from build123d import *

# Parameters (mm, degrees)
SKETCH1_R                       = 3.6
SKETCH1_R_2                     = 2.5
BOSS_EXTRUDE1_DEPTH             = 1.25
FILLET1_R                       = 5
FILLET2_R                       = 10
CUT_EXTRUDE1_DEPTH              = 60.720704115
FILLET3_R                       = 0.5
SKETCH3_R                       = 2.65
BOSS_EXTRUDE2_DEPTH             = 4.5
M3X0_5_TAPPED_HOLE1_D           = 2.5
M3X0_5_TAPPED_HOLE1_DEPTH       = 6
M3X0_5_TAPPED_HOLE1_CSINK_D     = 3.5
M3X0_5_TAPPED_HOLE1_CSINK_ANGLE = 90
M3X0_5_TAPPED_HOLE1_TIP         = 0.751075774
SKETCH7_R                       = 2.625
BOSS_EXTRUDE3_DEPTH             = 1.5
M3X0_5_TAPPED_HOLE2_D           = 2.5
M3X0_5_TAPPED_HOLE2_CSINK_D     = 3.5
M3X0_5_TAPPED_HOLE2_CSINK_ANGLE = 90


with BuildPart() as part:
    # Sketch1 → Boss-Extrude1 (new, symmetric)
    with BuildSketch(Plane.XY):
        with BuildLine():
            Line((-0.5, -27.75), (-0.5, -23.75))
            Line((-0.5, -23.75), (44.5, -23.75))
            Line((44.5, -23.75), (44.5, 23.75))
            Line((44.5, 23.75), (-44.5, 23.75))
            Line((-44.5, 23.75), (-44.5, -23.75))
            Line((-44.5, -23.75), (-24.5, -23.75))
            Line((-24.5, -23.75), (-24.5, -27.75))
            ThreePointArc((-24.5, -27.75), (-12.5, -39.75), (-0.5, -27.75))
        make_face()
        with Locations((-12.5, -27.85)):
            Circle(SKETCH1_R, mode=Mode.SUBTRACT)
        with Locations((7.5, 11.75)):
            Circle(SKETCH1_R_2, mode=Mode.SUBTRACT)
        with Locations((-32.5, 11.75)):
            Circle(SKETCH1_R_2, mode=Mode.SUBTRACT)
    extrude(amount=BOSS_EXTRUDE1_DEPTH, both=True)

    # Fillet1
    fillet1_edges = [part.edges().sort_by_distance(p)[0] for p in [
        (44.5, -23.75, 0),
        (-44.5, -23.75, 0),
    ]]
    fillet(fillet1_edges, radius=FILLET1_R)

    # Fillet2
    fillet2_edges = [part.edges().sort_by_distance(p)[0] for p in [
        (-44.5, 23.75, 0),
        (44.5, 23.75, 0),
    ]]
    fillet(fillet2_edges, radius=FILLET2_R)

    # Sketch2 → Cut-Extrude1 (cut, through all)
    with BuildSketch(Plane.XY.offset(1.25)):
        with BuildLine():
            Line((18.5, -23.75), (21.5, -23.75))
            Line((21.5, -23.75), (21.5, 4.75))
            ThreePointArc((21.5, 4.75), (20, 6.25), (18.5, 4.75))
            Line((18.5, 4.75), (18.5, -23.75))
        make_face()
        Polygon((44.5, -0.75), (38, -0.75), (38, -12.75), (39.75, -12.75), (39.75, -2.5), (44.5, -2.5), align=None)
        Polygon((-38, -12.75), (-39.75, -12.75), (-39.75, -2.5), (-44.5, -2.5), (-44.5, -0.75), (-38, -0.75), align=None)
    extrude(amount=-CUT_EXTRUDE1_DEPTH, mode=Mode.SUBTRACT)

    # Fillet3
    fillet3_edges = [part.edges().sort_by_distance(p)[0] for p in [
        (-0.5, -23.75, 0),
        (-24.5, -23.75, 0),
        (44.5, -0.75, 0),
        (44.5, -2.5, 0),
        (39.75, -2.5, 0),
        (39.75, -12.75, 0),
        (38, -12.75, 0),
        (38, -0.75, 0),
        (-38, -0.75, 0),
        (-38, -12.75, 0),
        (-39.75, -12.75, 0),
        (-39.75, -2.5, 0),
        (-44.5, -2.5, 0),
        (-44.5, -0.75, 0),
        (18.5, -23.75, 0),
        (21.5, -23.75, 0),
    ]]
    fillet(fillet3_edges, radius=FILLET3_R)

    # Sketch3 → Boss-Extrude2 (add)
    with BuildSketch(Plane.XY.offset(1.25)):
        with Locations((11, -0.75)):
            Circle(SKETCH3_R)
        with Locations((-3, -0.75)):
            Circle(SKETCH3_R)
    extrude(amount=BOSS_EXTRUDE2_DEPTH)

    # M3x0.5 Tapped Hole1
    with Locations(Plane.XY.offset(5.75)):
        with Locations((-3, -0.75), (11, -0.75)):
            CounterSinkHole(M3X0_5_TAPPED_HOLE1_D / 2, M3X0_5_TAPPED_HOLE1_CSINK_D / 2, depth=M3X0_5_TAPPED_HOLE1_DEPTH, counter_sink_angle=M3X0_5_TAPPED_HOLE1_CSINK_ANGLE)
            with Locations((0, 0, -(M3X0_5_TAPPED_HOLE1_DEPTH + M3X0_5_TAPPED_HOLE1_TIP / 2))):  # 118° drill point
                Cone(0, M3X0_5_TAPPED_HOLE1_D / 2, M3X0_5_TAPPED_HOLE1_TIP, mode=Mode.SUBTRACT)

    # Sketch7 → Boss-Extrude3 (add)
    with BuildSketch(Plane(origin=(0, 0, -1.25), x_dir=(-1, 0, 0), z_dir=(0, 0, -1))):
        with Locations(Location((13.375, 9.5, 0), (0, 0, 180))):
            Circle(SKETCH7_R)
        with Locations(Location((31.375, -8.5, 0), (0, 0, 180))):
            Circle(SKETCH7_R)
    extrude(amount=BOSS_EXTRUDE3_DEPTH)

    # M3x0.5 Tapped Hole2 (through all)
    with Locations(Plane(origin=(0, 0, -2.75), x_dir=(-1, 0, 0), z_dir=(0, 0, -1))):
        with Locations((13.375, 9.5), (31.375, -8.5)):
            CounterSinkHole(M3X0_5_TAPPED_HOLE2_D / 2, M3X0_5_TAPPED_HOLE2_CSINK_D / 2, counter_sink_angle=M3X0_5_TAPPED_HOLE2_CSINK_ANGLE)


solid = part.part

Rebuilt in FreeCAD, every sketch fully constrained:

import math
import FreeCAD as App
import Part
import Sketcher
from FreeCAD import Vector


def edges_at(feature, points):
    """Names of the edges that pass closest to the given points."""
    edges = feature.Shape.Edges
    near = lambda p: min(range(len(edges)), key=lambda i: edges[i].distToShape(Part.Vertex(*p))[0])
    return sorted({f"Edge{near(p) + 1}" for p in points})

doc = App.newDocument("Part")
body = doc.addObject("PartDesign::Body", "Body")

sketch1 = body.newObject("Sketcher::SketchObject", "Sketch")
sketch1.AttachmentSupport = (doc.getObject("XY_Plane"), [""])
sketch1.MapMode = "FlatFace"
sketch1.addGeometry([
    Part.LineSegment(Vector(-0.5, -27.75, 0), Vector(-0.5, -23.75, 0)),
    Part.LineSegment(Vector(-0.5, -23.75, 0), Vector(44.5, -23.75, 0)),
    Part.LineSegment(Vector(44.5, -23.75, 0), Vector(44.5, 23.75, 0)),
    Part.LineSegment(Vector(44.5, 23.75, 0), Vector(-44.5, 23.75, 0)),
    Part.LineSegment(Vector(-44.5, 23.75, 0), Vector(-44.5, -23.75, 0)),
    Part.LineSegment(Vector(-44.5, -23.75, 0), Vector(-24.5, -23.75, 0)),
    Part.LineSegment(Vector(-24.5, -23.75, 0), Vector(-24.5, -27.75, 0)),
    Part.ArcOfCircle(Part.Circle(Vector(-12.5, -27.75, 0), Vector(0, 0, 1), 12), math.radians(180), math.radians(360)),
    Part.Circle(Vector(-12.5, -27.85, 0), Vector(0, 0, 1), 3.6),
    Part.Circle(Vector(-32.5, 11.75, 0), Vector(0, 0, 1), 2.5),
    Part.Circle(Vector(7.5, 11.75, 0), Vector(0, 0, 1), 2.5),
], False)
sketch1.addConstraint([
    Sketcher.Constraint("Coincident", 0, 2, 1, 1),
    Sketcher.Constraint("Coincident", 1, 2, 2, 1),
    Sketcher.Constraint("Coincident", 2, 2, 3, 1),
    Sketcher.Constraint("Coincident", 3, 2, 4, 1),
    Sketcher.Constraint("Coincident", 4, 2, 5, 1),
    Sketcher.Constraint("Coincident", 5, 2, 6, 1),
    Sketcher.Constraint("Tangent", 6, 2, 7, 1),
    Sketcher.Constraint("Tangent", 7, 2, 0, 1),
    Sketcher.Constraint("Vertical", 0),
    Sketcher.Constraint("Horizontal", 1),
    Sketcher.Constraint("Vertical", 2),
    Sketcher.Constraint("Horizontal", 3),
    Sketcher.Constraint("Vertical", 4),
    Sketcher.Constraint("Horizontal", 5),
    Sketcher.Constraint("Vertical", 6),
    Sketcher.Constraint("Equal", 9, 10),
    Sketcher.Constraint("Symmetric", 1, 2, 3, 2, -1, 1),
    Sketcher.Constraint("Horizontal", 9, 3, 10, 3),
    Sketcher.Constraint("Horizontal", 1, 2, 4, 2),
    Sketcher.Constraint("Vertical", 7, 3, 8, 3),
    Sketcher.Constraint("Diameter", 9, 5.0),
    Sketcher.Constraint("Radius", 7, 12.0),
    Sketcher.Constraint("Diameter", 8, 7.2),
    Sketcher.Constraint("DistanceX", 1, 1, 1, 2, 45.0),
    Sketcher.Constraint("DistanceX", 3, 2, 3, 1, 89.0),
    Sketcher.Constraint("DistanceY", 0, 1, 0, 2, 4.0),
    Sketcher.Constraint("DistanceY", 2, 1, 2, 2, 47.5),
    Sketcher.Constraint("DistanceX", 9, 3, 7, 3, 20.0),
    Sketcher.Constraint("DistanceX", 9, 3, 10, 3, 40.0),
    Sketcher.Constraint("DistanceY", 10, 3, 2, 2, 12.0),
    Sketcher.Constraint("DistanceY", 8, 3, 7, 3, 0.1),
])
pad1 = body.newObject("PartDesign::Pad", "Pad")
pad1.Profile = sketch1
pad1.Length = 2.5
pad1.Midplane = True
doc.recompute()

fillet = body.newObject("PartDesign::Fillet", "Fillet")
fillet.Base = (pad1, edges_at(pad1, [(44.5, -23.75, 0), (-44.5, -23.75, 0)]))
fillet.Radius = 5
doc.recompute()

fillet2 = body.newObject("PartDesign::Fillet", "Fillet001")
fillet2.Base = (fillet, edges_at(fillet, [(-44.5, 23.75, 0), (44.5, 23.75, 0)]))
fillet2.Radius = 10

sketch2 = body.newObject("Sketcher::SketchObject", "Sketch001")
sketch2.AttachmentSupport = (doc.getObject("XY_Plane"), [""])
sketch2.MapMode = "FlatFace"
sketch2.AttachmentOffset = App.Placement(Vector(0, 0, 1.25), App.Rotation())
sketch2.addGeometry([
    Part.LineSegment(Vector(18.5, -23.75, 0), Vector(21.5, -23.75, 0)),
    Part.LineSegment(Vector(21.5, -23.75, 0), Vector(21.5, 4.75, 0)),
    Part.ArcOfCircle(Part.Circle(Vector(20, 4.75, 0), Vector(0, 0, 1), 1.5), math.radians(0), math.radians(180)),
    Part.LineSegment(Vector(18.5, 4.75, 0), Vector(18.5, -23.75, 0)),
    Part.LineSegment(Vector(44.5, -0.75, 0), Vector(38, -0.75, 0)),
    Part.LineSegment(Vector(38, -0.75, 0), Vector(38, -12.75, 0)),
    Part.LineSegment(Vector(38, -12.75, 0), Vector(39.75, -12.75, 0)),
    Part.LineSegment(Vector(39.75, -12.75, 0), Vector(39.75, -2.5, 0)),
    Part.LineSegment(Vector(39.75, -2.5, 0), Vector(44.5, -2.5, 0)),
    Part.LineSegment(Vector(44.5, -2.5, 0), Vector(44.5, -0.75, 0)),
    Part.LineSegment(Vector(-39.75, -12.75, 0), Vector(-38, -12.75, 0)),
    Part.LineSegment(Vector(-38, -12.75, 0), Vector(-38, -0.75, 0)),
    Part.LineSegment(Vector(-38, -0.75, 0), Vector(-44.5, -0.75, 0)),
    Part.LineSegment(Vector(-44.5, -0.75, 0), Vector(-44.5, -2.5, 0)),
    Part.LineSegment(Vector(-44.5, -2.5, 0), Vector(-39.75, -2.5, 0)),
    Part.LineSegment(Vector(-39.75, -2.5, 0), Vector(-39.75, -12.75, 0)),
], False)
sketch2.addConstraint([
    Sketcher.Constraint("Coincident", 0, 2, 1, 1),
    Sketcher.Constraint("Tangent", 1, 2, 2, 1),
    Sketcher.Constraint("Tangent", 2, 2, 3, 1),
    Sketcher.Constraint("Coincident", 3, 2, 0, 1),
    Sketcher.Constraint("Coincident", 4, 2, 5, 1),
    Sketcher.Constraint("Coincident", 5, 2, 6, 1),
    Sketcher.Constraint("Coincident", 6, 2, 7, 1),
    Sketcher.Constraint("Coincident", 7, 2, 8, 1),
    Sketcher.Constraint("Coincident", 8, 2, 9, 1),
    Sketcher.Constraint("Coincident", 9, 2, 4, 1),
    Sketcher.Constraint("Coincident", 10, 2, 11, 1),
    Sketcher.Constraint("Coincident", 11, 2, 12, 1),
    Sketcher.Constraint("Coincident", 12, 2, 13, 1),
    Sketcher.Constraint("Coincident", 13, 2, 14, 1),
    Sketcher.Constraint("Coincident", 14, 2, 15, 1),
    Sketcher.Constraint("Coincident", 15, 2, 10, 1),
    Sketcher.Constraint("Horizontal", 0),
    Sketcher.Constraint("Vertical", 1),
    Sketcher.Constraint("Vertical", 3),
    Sketcher.Constraint("Horizontal", 4),
    Sketcher.Constraint("Vertical", 5),
    Sketcher.Constraint("Horizontal", 6),
    Sketcher.Constraint("Vertical", 7),
    Sketcher.Constraint("Horizontal", 8),
    Sketcher.Constraint("Vertical", 9),
    Sketcher.Constraint("Horizontal", 10),
    Sketcher.Constraint("Vertical", 11),
    Sketcher.Constraint("Horizontal", 12),
    Sketcher.Constraint("Vertical", 13),
    Sketcher.Constraint("Horizontal", 14),
    Sketcher.Constraint("Vertical", 15),
    Sketcher.Constraint("Symmetric", 5, 2, 10, 2, -2),
    Sketcher.Constraint("Symmetric", 9, 2, 12, 2, -2),
    Sketcher.Constraint("Symmetric", 7, 2, 14, 2, -2),
    Sketcher.Constraint("Equal", 10, 9),
    Sketcher.Constraint("Radius", 2, 1.5),
    Sketcher.Constraint("DistanceY", 5, 2, 5, 1, 12.0),
    Sketcher.Constraint("DistanceX", 4, 2, 4, 1, 6.5),
    Sketcher.Constraint("DistanceY", 1, 1, 1, 2, 28.5),
    Sketcher.Constraint("DistanceX", -1, 1, 2, 3, 20.0),
    Sketcher.Constraint("DistanceX", -1, 1, 4, 2, 38.0),
    Sketcher.Constraint("DistanceY", 0, 2, 4, 2, 23.0),
    Sketcher.Constraint("DistanceX", 6, 1, 6, 2, 1.75),
    Sketcher.Constraint("DistanceY", 7, 2, -1, 1, 2.5),
])
pocket1 = body.newObject("PartDesign::Pocket", "Pocket")
pocket1.Profile = sketch2
pocket1.Type = "ThroughAll"
doc.recompute()

fillet3 = body.newObject("PartDesign::Fillet", "Fillet002")
fillet3.Base = (pocket1, edges_at(pocket1, [
    (-0.5, -23.75, 0),
    (-24.5, -23.75, 0),
    (44.5, -0.75, 0),
    (44.5, -2.5, 0),
    (39.75, -2.5, 0),
    (39.75, -12.75, 0),
    (38, -12.75, 0),
    (38, -0.75, 0),
    (-38, -0.75, 0),
    (-38, -12.75, 0),
    (-39.75, -12.75, 0),
    (-39.75, -2.5, 0),
    (-44.5, -2.5, 0),
    (-44.5, -0.75, 0),
    (18.5, -23.75, 0),
    (21.5, -23.75, 0),
]))
fillet3.Radius = 0.5

sketch3 = body.newObject("Sketcher::SketchObject", "Sketch002")
sketch3.AttachmentSupport = (doc.getObject("XY_Plane"), [""])
sketch3.MapMode = "FlatFace"
sketch3.AttachmentOffset = App.Placement(Vector(0, 0, 1.25), App.Rotation())
sketch3.addGeometry([
    Part.Circle(Vector(11, -0.75, 0), Vector(0, 0, 1), 2.65),
    Part.Circle(Vector(-3, -0.75, 0), Vector(0, 0, 1), 2.65),
], False)
sketch3.addConstraint([
    Sketcher.Constraint("Equal", 0, 1),
    Sketcher.Constraint("Horizontal", 0, 3, 1, 3),
    Sketcher.Constraint("Diameter", 0, 5.3),
    Sketcher.Constraint("DistanceX", -1, 1, 0, 3, 11.0),
    Sketcher.Constraint("DistanceX", 1, 3, -1, 1, 3.0),
    Sketcher.Constraint("DistanceY", 0, 3, -1, 1, 0.75),
])
pad2 = body.newObject("PartDesign::Pad", "Pad001")
pad2.Profile = sketch3
pad2.Length = 4.5

sketch4 = body.newObject("Sketcher::SketchObject", "Sketch003")
sketch4.AttachmentSupport = (doc.getObject("XY_Plane"), [""])
sketch4.MapMode = "FlatFace"
sketch4.AttachmentOffset = App.Placement(Vector(0, 0, 5.75), App.Rotation())
sketch4.addGeometry([
    Part.Circle(Vector(-3, -0.75, 0), Vector(0, 0, 1), 1.25),
    Part.Circle(Vector(11, -0.75, 0), Vector(0, 0, 1), 1.25),
], False)
sketch4.addConstraint([
    Sketcher.Constraint("Equal", 0, 1),
    Sketcher.Constraint("Horizontal", 0, 3, 1, 3),
    Sketcher.Constraint("Diameter", 0, 2.5),
    Sketcher.Constraint("DistanceX", 0, 3, -1, 1, 3.0),
    Sketcher.Constraint("DistanceX", -1, 1, 1, 3, 11.0),
    Sketcher.Constraint("DistanceY", 0, 3, -1, 1, 0.75),
])
doc.recompute()
hole = body.newObject("PartDesign::Hole", "Hole")
hole.Profile = sketch4
hole.ThreadType = "None"
hole.Diameter = 2.5
hole.DepthType = "Dimension"
hole.Depth = 6
hole.DrillPoint = "Angled"
hole.DrillPointAngle = 118
hole.HoleCutType = "Countersink"
hole.HoleCutDiameter = 3.5
hole.HoleCutCountersinkAngle = 90

sketch5 = body.newObject("Sketcher::SketchObject", "Sketch004")
sketch5.AttachmentSupport = (doc.getObject("XY_Plane"), [""])
sketch5.MapMode = "FlatFace"
sketch5.AttachmentOffset = App.Placement(Vector(0, 0, -1.25), App.Rotation())
sketch5.addGeometry([
    Part.Circle(Vector(-13.375, 9.5, 0), Vector(0, 0, 1), 2.625),
    Part.Circle(Vector(-31.375, -8.5, 0), Vector(0, 0, 1), 2.625),
], False)
sketch5.addConstraint([
    Sketcher.Constraint("Equal", 0, 1),
    Sketcher.Constraint("Diameter", 0, 5.25),
    Sketcher.Constraint("DistanceX", 1, 3, 0, 3, 18.0),
    Sketcher.Constraint("DistanceY", 1, 3, 0, 3, 18.0),
    Sketcher.Constraint("DistanceY", -1, 1, 0, 3, 9.5),
    Sketcher.Constraint("DistanceX", 0, 3, -1, 1, 13.375),
])
pad3 = body.newObject("PartDesign::Pad", "Pad002")
pad3.Profile = sketch5
pad3.Length = 1.5
pad3.Reversed = True

sketch6 = body.newObject("Sketcher::SketchObject", "Sketch005")
sketch6.AttachmentSupport = (doc.getObject("XY_Plane"), [""])
sketch6.MapMode = "FlatFace"
sketch6.AttachmentOffset = App.Placement(Vector(0, 0, -2.75), App.Rotation())
sketch6.addGeometry([
    Part.Circle(Vector(-13.375, 9.5, 0), Vector(0, 0, 1), 1.25),
    Part.Circle(Vector(-31.375, -8.5, 0), Vector(0, 0, 1), 1.25),
], False)
sketch6.addConstraint([
    Sketcher.Constraint("Equal", 0, 1),
    Sketcher.Constraint("Diameter", 0, 2.5),
    Sketcher.Constraint("DistanceX", 1, 3, 0, 3, 18.0),
    Sketcher.Constraint("DistanceY", 1, 3, 0, 3, 18.0),
    Sketcher.Constraint("DistanceY", -1, 1, 0, 3, 9.5),
    Sketcher.Constraint("DistanceX", 0, 3, -1, 1, 13.375),
])
doc.recompute()
hole2 = body.newObject("PartDesign::Hole", "Hole001")
hole2.Profile = sketch6
hole2.ThreadType = "None"
hole2.Diameter = 2.5
hole2.DepthType = "ThroughAll"
hole2.HoleCutType = "Countersink"
hole2.HoleCutDiameter = 3.5
hole2.HoleCutCountersinkAngle = 90
hole2.Reversed = True

doc.recompute()
